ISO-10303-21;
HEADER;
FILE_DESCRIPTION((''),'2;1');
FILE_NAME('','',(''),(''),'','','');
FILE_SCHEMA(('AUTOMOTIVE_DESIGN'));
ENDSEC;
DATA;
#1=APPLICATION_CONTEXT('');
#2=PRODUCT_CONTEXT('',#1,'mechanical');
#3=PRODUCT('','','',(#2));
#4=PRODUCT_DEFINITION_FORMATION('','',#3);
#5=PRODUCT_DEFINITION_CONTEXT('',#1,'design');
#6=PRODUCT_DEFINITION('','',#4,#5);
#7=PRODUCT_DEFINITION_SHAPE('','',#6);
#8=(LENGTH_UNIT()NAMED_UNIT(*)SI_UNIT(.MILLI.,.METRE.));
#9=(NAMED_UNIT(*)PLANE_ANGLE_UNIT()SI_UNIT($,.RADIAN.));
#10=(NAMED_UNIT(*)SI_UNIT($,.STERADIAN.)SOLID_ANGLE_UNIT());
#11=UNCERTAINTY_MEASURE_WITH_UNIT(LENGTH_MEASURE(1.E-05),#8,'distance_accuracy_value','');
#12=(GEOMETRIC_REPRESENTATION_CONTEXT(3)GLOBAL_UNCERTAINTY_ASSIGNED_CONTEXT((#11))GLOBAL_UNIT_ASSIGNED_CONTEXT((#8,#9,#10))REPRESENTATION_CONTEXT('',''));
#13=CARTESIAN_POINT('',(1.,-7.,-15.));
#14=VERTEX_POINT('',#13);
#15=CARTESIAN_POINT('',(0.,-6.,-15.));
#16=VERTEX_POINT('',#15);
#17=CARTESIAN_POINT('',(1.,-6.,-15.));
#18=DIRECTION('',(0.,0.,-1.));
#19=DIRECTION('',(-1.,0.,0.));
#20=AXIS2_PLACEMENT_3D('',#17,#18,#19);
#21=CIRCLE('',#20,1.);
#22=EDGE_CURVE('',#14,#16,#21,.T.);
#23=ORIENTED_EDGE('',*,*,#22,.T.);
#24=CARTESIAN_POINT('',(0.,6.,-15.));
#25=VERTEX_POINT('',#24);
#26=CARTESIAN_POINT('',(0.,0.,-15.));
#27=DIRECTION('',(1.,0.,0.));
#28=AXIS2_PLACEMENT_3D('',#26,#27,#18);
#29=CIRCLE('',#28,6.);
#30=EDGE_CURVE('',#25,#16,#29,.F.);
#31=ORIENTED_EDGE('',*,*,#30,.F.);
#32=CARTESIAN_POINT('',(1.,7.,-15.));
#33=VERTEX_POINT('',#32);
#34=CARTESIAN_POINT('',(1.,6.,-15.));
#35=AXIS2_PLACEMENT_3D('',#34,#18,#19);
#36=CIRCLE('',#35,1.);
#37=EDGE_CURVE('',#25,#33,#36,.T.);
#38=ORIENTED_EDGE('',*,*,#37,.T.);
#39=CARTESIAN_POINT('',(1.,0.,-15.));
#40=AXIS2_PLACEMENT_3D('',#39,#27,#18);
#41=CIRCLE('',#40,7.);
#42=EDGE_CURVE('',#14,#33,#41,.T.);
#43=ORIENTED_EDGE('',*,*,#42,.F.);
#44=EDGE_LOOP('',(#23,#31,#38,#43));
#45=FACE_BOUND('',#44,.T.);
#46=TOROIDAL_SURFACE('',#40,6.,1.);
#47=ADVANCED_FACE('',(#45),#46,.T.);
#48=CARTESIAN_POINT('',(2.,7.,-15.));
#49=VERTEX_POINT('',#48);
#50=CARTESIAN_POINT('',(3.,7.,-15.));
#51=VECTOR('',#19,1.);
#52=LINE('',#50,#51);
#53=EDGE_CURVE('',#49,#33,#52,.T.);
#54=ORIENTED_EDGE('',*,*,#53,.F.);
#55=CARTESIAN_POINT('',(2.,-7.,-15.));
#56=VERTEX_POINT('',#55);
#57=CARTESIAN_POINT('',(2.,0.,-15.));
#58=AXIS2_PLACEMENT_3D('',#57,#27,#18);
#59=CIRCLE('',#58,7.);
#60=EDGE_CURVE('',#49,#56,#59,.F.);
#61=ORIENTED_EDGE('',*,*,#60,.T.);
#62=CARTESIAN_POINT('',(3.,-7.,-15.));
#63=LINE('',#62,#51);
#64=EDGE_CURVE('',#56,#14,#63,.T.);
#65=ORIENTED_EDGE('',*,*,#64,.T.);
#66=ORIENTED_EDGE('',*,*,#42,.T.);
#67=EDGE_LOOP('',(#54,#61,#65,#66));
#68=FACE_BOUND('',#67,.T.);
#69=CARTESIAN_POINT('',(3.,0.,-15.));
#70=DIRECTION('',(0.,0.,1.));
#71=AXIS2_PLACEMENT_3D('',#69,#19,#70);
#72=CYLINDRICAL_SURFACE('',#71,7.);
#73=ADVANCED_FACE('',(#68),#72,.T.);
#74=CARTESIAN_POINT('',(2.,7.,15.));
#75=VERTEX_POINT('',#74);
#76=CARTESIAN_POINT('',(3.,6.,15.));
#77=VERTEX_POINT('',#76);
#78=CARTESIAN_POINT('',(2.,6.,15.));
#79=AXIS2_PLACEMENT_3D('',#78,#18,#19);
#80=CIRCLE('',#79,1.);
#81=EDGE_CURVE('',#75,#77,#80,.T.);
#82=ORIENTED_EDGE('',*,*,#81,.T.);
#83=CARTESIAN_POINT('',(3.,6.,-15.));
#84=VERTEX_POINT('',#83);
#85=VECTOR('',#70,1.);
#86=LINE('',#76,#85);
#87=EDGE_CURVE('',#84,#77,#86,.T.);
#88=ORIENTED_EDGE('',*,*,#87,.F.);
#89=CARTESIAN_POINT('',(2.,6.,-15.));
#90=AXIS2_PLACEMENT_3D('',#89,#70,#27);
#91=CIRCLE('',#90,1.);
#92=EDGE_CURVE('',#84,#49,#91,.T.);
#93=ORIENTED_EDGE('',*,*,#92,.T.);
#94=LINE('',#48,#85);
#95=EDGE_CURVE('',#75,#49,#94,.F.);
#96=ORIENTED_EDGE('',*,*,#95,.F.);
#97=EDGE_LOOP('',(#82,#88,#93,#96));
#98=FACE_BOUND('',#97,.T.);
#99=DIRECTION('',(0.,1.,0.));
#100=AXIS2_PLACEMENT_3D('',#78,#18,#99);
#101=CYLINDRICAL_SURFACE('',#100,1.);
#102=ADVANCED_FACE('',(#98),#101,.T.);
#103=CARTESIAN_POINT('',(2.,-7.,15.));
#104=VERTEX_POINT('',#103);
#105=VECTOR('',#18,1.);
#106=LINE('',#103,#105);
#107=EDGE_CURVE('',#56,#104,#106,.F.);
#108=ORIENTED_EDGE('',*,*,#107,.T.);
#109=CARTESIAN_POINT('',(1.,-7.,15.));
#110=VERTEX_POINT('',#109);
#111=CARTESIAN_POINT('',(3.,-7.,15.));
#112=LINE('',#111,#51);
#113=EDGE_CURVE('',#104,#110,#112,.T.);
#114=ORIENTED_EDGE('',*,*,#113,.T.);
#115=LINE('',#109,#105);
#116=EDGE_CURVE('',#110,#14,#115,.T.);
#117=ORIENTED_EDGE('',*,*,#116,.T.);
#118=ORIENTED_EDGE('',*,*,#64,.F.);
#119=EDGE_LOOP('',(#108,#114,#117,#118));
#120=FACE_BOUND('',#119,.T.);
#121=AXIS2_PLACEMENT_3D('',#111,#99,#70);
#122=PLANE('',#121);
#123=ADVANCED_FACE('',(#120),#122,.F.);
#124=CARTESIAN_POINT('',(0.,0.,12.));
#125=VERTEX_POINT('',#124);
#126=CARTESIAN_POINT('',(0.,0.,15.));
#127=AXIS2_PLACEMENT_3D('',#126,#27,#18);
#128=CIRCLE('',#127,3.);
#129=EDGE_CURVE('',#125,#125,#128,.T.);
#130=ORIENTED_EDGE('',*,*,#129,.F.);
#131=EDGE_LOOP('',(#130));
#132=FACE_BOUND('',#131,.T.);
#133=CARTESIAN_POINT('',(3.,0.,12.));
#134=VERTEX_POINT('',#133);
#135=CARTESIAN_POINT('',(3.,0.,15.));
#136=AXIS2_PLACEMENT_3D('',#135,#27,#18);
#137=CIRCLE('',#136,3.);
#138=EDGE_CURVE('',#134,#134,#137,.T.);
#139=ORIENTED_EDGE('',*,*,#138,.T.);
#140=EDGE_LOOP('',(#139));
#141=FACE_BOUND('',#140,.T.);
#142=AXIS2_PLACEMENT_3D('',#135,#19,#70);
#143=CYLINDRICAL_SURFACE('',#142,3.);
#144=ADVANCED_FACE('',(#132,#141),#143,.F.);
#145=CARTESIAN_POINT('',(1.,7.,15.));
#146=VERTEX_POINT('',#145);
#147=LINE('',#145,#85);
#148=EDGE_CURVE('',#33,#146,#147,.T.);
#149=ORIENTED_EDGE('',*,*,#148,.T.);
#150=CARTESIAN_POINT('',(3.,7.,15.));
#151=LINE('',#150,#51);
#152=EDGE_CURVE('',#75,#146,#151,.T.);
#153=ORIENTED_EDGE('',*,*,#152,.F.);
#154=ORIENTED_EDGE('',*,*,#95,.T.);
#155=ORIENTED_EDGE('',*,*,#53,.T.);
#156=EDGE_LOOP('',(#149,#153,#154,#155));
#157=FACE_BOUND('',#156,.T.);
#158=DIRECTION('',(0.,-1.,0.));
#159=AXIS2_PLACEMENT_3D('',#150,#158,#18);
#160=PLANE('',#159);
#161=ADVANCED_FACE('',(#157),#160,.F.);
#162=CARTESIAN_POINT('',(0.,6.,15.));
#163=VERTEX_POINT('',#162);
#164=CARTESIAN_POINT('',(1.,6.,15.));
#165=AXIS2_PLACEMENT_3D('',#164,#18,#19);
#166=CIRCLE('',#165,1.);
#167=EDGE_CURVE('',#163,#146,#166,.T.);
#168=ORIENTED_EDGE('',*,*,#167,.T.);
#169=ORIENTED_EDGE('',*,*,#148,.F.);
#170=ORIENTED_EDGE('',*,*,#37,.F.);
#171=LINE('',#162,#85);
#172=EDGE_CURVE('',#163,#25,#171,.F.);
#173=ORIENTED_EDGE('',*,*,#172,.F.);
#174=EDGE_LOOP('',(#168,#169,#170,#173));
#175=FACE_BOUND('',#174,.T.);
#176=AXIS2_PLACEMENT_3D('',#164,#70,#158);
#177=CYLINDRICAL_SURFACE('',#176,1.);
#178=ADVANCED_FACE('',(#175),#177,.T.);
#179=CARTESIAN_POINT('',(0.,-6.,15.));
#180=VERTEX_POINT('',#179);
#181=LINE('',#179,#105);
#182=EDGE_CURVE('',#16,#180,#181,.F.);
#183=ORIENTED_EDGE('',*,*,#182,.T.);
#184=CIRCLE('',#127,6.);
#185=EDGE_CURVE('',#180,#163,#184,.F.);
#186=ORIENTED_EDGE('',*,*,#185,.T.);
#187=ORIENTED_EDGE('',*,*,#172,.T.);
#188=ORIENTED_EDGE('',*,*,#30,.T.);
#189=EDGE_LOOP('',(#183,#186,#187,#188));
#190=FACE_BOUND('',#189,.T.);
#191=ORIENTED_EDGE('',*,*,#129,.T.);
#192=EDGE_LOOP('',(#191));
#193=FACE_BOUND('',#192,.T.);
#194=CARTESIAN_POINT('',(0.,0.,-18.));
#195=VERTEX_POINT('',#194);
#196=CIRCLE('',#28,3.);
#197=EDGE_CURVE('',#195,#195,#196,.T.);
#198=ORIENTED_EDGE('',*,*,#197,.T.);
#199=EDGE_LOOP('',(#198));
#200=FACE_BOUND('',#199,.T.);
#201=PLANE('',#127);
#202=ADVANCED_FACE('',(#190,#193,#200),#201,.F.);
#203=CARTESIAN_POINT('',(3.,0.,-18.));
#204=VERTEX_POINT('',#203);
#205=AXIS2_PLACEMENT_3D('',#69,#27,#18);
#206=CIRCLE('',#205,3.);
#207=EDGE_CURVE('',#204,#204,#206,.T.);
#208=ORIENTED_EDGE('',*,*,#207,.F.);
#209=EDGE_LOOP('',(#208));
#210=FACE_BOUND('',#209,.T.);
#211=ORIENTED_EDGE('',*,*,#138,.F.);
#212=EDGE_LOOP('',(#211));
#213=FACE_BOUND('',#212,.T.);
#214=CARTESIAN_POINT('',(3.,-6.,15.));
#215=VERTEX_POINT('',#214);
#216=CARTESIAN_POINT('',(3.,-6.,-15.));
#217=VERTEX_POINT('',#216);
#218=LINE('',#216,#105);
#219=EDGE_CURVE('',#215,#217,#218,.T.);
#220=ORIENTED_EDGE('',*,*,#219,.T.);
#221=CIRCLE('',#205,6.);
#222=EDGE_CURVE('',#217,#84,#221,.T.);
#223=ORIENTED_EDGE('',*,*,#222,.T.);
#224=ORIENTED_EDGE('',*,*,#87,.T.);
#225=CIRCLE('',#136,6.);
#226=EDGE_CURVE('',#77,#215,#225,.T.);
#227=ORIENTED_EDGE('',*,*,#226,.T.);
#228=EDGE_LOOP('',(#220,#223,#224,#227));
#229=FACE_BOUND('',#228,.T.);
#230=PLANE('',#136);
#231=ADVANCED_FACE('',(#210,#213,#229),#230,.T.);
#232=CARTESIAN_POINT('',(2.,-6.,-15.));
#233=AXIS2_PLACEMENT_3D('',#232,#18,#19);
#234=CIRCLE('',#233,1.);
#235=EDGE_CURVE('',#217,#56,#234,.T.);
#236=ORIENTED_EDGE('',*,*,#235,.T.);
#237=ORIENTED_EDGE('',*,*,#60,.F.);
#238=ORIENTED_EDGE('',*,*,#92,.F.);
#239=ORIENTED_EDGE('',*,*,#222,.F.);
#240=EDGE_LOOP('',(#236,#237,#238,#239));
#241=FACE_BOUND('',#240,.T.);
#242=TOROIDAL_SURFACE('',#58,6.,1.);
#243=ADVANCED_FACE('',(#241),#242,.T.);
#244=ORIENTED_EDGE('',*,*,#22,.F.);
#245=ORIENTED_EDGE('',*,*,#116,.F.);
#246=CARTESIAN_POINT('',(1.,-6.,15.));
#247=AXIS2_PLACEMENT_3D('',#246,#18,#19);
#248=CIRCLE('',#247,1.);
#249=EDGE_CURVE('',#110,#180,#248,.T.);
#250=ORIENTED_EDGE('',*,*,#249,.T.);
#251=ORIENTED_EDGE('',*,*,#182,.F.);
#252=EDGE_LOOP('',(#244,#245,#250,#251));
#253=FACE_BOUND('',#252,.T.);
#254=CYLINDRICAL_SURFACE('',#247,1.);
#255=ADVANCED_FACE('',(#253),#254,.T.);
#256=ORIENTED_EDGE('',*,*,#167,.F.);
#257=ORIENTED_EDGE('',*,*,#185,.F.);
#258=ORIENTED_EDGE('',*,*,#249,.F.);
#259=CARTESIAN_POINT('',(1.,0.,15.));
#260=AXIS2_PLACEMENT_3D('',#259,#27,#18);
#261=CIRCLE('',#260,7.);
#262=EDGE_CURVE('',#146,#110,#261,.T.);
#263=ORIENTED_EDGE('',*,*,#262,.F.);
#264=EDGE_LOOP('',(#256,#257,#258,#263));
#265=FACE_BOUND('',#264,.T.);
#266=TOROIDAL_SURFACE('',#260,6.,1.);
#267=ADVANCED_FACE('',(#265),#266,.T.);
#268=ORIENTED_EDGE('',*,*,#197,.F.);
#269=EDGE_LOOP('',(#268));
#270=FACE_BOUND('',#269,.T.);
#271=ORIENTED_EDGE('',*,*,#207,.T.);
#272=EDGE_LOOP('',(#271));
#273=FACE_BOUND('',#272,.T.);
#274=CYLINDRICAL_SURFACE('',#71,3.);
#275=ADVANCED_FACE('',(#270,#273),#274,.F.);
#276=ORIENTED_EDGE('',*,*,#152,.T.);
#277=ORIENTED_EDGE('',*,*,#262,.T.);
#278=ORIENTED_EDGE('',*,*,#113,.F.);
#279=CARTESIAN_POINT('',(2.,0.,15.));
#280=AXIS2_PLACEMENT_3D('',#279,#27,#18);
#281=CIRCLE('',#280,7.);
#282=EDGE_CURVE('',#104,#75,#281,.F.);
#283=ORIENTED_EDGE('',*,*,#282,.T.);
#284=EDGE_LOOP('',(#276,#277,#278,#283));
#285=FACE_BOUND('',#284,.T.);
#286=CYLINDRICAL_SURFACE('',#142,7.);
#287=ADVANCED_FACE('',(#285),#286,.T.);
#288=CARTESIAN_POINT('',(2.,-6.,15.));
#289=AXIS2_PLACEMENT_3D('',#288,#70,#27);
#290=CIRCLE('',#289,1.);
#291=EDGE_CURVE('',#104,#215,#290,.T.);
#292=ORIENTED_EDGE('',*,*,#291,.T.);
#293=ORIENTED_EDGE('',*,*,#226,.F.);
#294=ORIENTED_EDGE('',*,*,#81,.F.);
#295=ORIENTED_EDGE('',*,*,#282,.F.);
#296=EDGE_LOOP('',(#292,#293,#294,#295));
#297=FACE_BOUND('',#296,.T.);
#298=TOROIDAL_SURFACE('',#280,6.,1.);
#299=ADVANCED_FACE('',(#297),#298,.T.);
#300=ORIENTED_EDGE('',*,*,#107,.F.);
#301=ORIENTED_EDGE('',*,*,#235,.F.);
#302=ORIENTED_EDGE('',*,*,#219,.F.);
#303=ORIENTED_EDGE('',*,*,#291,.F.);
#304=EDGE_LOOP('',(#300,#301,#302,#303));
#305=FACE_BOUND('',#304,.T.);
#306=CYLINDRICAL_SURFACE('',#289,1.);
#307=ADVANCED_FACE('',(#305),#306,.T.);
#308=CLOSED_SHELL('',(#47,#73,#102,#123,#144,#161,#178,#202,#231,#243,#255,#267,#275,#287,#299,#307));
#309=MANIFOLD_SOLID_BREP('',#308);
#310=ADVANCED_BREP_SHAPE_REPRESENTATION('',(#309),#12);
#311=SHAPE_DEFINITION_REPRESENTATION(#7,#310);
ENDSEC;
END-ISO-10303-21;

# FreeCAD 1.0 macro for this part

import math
import FreeCAD as App
import Part
import Sketcher
from FreeCAD import Vector


def edges_at(feature, points):
    """Names of the edges that pass closest to the given points."""
    edges = feature.Shape.Edges
    near = lambda p: min(range(len(edges)), key=lambda i: edges[i].distToShape(Part.Vertex(*p))[0])
    return sorted({f"Edge{near(p) + 1}" for p in points})

doc = App.newDocument("Part")
body = doc.addObject("PartDesign::Body", "Body")

# Sketch on YZ plane
sketch1 = doc.addObject("Sketcher::SketchObject", "Sketch")
body.addObject(sketch1)
sketch1.AttachmentSupport = (doc.YZ_Plane, [""])
sketch1.MapMode = "FlatFace"
sketch1.addGeometry(Part.LineSegment(Vector(7, -15, 0), Vector(7, 15, 0)), False)
sketch1.addGeometry(Part.ArcOfCircle(Part.Circle(Vector(0, 15, 0), Vector(0, 0, 1), 7), math.radians(0), math.radians(180)), False)
sketch1.addGeometry(Part.LineSegment(Vector(-7, 15, 0), Vector(-7, -15, 0)), False)
sketch1.addGeometry(Part.ArcOfCircle(Part.Circle(Vector(0, -15, 0), Vector(0, 0, 1), 7), math.radians(180), math.radians(360)), False)
sketch1.addGeometry(Part.Circle(Vector(0, -15, 0), Vector(0, 0, 1), 3), False)
sketch1.addGeometry(Part.Circle(Vector(0, 15, 0), Vector(0, 0, 1), 3), False)
sketch1.addConstraint(Sketcher.Constraint("Tangent", 0, 2, 1, 1))
sketch1.addConstraint(Sketcher.Constraint("Tangent", 1, 2, 2, 1))
sketch1.addConstraint(Sketcher.Constraint("Tangent", 2, 2, 3, 1))
sketch1.addConstraint(Sketcher.Constraint("Tangent", 3, 2, 0, 1))
sketch1.addConstraint(Sketcher.Constraint("Vertical", 0))
sketch1.addConstraint(Sketcher.Constraint("Vertical", 2))
sketch1.addConstraint(Sketcher.Constraint("Coincident", 4, 3, 3, 3))
sketch1.addConstraint(Sketcher.Constraint("Coincident", 5, 3, 1, 3))
sketch1.addConstraint(Sketcher.Constraint("Equal", 4, 5))
sketch1.addConstraint(Sketcher.Constraint("Symmetric", 1, 3, 3, 3, -1, 1))
sketch1.addConstraint(Sketcher.Constraint("Diameter", 4, 6.0))
sketch1.addConstraint(Sketcher.Constraint("Radius", 1, 7.0))
sketch1.addConstraint(Sketcher.Constraint("DistanceY", 0, 1, 0, 2, 30.0))
pad1 = doc.addObject("PartDesign::Pad", "Pad")
body.addObject(pad1)
pad1.Profile = sketch1
pad1.Length = 3
doc.recompute()

fillet = doc.addObject("PartDesign::Fillet", "Fillet")
body.addObject(fillet)
fillet.Base = (pad1, edges_at(pad1, [
    (3, 0, -22),
    (3, 7, 0),
    (3, 0, 22),
    (0, 7, 0),
    (0, 0, -22),
    (0, -7, 0),
    (0, 0, 22),
    (3, -7, 0),
]))
fillet.Radius = 1

doc.recompute()
